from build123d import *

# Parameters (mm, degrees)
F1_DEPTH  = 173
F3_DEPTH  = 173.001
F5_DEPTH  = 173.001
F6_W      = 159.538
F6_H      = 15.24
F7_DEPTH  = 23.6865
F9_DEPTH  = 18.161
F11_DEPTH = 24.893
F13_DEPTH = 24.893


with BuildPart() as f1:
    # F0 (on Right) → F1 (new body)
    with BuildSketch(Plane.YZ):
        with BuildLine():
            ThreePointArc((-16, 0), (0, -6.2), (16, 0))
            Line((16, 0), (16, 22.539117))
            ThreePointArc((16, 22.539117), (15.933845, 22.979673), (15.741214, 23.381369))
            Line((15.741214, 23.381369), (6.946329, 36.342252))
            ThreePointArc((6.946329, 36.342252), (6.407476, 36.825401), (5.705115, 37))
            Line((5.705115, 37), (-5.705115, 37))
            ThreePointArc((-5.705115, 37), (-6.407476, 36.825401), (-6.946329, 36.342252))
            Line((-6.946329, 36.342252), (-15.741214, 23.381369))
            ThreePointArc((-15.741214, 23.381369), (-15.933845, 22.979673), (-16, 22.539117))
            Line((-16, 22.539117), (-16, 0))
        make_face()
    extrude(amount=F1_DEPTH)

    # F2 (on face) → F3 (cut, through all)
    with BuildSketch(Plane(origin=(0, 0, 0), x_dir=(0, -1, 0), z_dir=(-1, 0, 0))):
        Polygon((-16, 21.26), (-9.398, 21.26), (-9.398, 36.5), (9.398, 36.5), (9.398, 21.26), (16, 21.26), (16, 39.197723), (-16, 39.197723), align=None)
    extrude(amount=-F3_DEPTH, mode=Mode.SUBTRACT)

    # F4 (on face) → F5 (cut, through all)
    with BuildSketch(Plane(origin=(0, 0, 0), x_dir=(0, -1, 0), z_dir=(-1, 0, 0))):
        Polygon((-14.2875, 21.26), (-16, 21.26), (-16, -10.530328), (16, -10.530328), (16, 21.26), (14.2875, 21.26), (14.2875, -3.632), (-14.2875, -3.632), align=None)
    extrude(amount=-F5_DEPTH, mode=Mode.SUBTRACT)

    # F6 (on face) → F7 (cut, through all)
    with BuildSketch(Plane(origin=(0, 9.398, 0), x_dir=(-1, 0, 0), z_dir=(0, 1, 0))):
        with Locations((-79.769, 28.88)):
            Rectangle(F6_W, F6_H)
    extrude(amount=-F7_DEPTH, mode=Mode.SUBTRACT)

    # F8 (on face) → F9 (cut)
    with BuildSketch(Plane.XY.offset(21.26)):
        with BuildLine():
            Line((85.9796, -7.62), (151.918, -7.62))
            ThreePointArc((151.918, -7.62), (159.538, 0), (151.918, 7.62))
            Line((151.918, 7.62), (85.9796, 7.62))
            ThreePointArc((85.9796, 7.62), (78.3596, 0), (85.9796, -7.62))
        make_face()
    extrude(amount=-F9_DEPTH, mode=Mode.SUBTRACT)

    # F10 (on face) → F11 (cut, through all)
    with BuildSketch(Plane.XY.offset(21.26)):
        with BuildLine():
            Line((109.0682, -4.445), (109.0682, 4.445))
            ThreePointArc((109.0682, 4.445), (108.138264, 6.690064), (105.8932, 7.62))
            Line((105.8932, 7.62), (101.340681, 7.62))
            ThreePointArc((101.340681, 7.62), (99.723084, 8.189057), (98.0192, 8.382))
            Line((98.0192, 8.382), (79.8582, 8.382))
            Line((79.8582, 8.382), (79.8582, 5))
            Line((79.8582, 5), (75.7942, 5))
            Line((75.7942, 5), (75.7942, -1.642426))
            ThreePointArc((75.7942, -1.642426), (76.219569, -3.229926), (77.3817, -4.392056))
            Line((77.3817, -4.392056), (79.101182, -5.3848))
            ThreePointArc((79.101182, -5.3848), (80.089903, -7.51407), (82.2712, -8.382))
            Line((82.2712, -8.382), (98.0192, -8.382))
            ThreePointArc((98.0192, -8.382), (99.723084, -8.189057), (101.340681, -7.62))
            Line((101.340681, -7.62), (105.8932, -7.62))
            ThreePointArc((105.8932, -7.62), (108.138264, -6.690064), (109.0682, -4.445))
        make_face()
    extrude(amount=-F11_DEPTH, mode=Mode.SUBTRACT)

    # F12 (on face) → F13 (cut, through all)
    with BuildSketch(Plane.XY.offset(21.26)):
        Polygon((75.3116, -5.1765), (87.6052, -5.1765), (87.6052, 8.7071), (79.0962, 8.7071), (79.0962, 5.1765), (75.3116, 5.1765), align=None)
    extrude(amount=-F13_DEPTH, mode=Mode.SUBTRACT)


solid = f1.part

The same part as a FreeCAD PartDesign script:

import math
import FreeCAD as App
import Part
import Sketcher
from FreeCAD import Vector
Q = App.Units.Quantity


def add_polygon(sketch, points):
    """Adds a closed chain of lines whose ends are joined by coincident constraints."""
    first, n = sketch.GeometryCount, len(points)
    for a, b in zip(points, points[1:] + points[:1]):
        sketch.addGeometry(Part.LineSegment(App.Vector(*a, 0), App.Vector(*b, 0)), False)
    for i in range(n):
        sketch.addConstraint(Sketcher.Constraint("Coincident", first + i, 2, first + (i + 1) % n, 1))

doc = App.newDocument("Part")
params = doc.addObject("Spreadsheet::Sheet", "Params")
for row, (alias, value) in enumerate([
    ("pad1_length", "173 mm"),
    ("sketch2_height", "0.6 in"),
    ("sketch2_width", "0.74 in"),
    ("sketch3_height", "0.98 in"),
    ("sketch3_width", "1.125 in"),
    ("sketch4_height", "0.6 in"),
    ("sketch5_radius", "0.3 in"),
    ("sketch5_width", "2.596 in"),
    ("pocket4_length", "0.715 in"),
    ("sketch6_radius", "0.125 in"),
    ("sketch6_radius2", "0.1249998 in"),
    ("sketch6_width", "0.16 in"),
    ("sketch6_width2", "0.62 in"),
    ("sketch6_height", "0.35 in"),
    ("sketch7_width", "0.484 in"),
    ("sketch7_width2", "0.335 in"),
    ("sketch7_height", "0.139 in"),
], start=1):
    params.set(f"A{row}", alias)
    params.set(f"B{row}", "=" + value)
    params.setAlias(f"B{row}", alias)

body = doc.addObject("PartDesign::Body", "Body")

# Sketch on YZ plane
sketch1 = doc.addObject("Sketcher::SketchObject", "Sketch")
body.addObject(sketch1)
sketch1.AttachmentSupport = (doc.YZ_Plane, [""])
sketch1.MapMode = "FlatFace"
sketch1.addGeometry(Part.ArcOfCircle(Part.Circle(Vector(0, 17.545161, 0), Vector(0, 0, 1), 23.745161), math.radians(-132.362699), math.radians(-47.637301)), False)
sketch1.addGeometry(Part.LineSegment(Vector(16, 0, 0), Vector(16, 22.539117, 0)), False)
sketch1.addGeometry(Part.ArcOfCircle(Part.Circle(Vector(14.500005, 22.539119, 0), Vector(0, 0, 1), 1.499995), math.radians(-0.000077), math.radians(34.159735)), False)
sketch1.addGeometry(Part.LineSegment(Vector(15.741214, 23.381369, 0), Vector(6.946329, 36.342252, 0)), False)
sketch1.addGeometry(Part.ArcOfCircle(Part.Circle(Vector(5.705113, 35.499996, 0), Vector(0, 0, 1), 1.500004), math.radians(34.159769), math.radians(89.999929)), False)
sketch1.addGeometry(Part.LineSegment(Vector(5.705115, 37, 0), Vector(-5.705115, 37, 0)), False)
sketch1.addGeometry(Part.ArcOfCircle(Part.Circle(Vector(-5.705113, 35.499996, 0), Vector(0, 0, 1), 1.500004), math.radians(90.000071), math.radians(145.840231)), False)
sketch1.addGeometry(Part.LineSegment(Vector(-6.946329, 36.342252, 0), Vector(-15.741214, 23.381369, 0)), False)
sketch1.addGeometry(Part.ArcOfCircle(Part.Circle(Vector(-14.500005, 22.539119, 0), Vector(0, 0, 1), 1.499995), math.radians(145.840265), math.radians(180.000077)), False)
sketch1.addGeometry(Part.LineSegment(Vector(-16, 22.539117, 0), Vector(-16, 0, 0)), False)
sketch1.addConstraint(Sketcher.Constraint("Coincident", 0, 2, 1, 1))
sketch1.addConstraint(Sketcher.Constraint("Coincident", 1, 2, 2, 1))
sketch1.addConstraint(Sketcher.Constraint("Coincident", 2, 2, 3, 1))
sketch1.addConstraint(Sketcher.Constraint("Coincident", 3, 2, 4, 1))
sketch1.addConstraint(Sketcher.Constraint("Coincident", 4, 2, 5, 1))
sketch1.addConstraint(Sketcher.Constraint("Coincident", 5, 2, 6, 1))
sketch1.addConstraint(Sketcher.Constraint("Coincident", 6, 2, 7, 1))
sketch1.addConstraint(Sketcher.Constraint("Coincident", 7, 2, 8, 1))
sketch1.addConstraint(Sketcher.Constraint("Coincident", 8, 2, 9, 1))
sketch1.addConstraint(Sketcher.Constraint("Coincident", 9, 2, 0, 1))
sketch1.addConstraint(Sketcher.Constraint("Vertical", 1))
sketch1.addConstraint(Sketcher.Constraint("Horizontal", 5))
sketch1.addConstraint(Sketcher.Constraint("Vertical", 9))
sketch1.addConstraint(Sketcher.Constraint("PointOnObject", 0, 3, -2))
sketch1.addConstraint(Sketcher.Constraint("PointOnObject", 0, 2, -1))
sketch1.addConstraint(Sketcher.Constraint("PointOnObject", 9, 2, -1))
sketch1.addConstraint(Sketcher.Constraint("Radius", 0, Q("23.745161 mm")))
sketch1.addConstraint(Sketcher.Constraint("Radius", 2, Q("1.499995 mm")))
sketch1.addConstraint(Sketcher.Constraint("Radius", 4, Q("1.500004 mm")))
sketch1.addConstraint(Sketcher.Constraint("Radius", 6, Q("1.500004 mm")))
sketch1.addConstraint(Sketcher.Constraint("Radius", 8, Q("1.499995 mm")))
sketch1.addConstraint(Sketcher.Constraint("DistanceX", 5, 2, 5, 1, Q("11.41023 mm")))
sketch1.addConstraint(Sketcher.Constraint("DistanceX", -1, 1, 0, 2, Q("16 mm")))
sketch1.addConstraint(Sketcher.Constraint("DistanceY", -1, 1, 4, 2, Q("37 mm")))
sketch1.addConstraint(Sketcher.Constraint("DistanceX", 4, 3, 2, 2, Q("10.036101 mm")))
sketch1.addConstraint(Sketcher.Constraint("DistanceX", 4, 2, 2, 2, Q("10.036099 mm")))
sketch1.addConstraint(Sketcher.Constraint("DistanceX", 7, 2, 6, 3, Q("10.036101 mm")))
sketch1.addConstraint(Sketcher.Constraint("DistanceX", 7, 2, 5, 2, Q("10.036099 mm")))
sketch1.addConstraint(Sketcher.Constraint("DistanceY", 1, 1, 1, 2, Q("22.539117 mm")))
sketch1.addConstraint(Sketcher.Constraint("DistanceY", 9, 2, 9, 1, Q("22.539117 mm")))
sketch1.addConstraint(Sketcher.Constraint("DistanceY", -1, 1, 2, 3, Q("22.539119 mm")))
sketch1.addConstraint(Sketcher.Constraint("DistanceY", -1, 1, 8, 3, Q("22.539119 mm")))
sketch1.addConstraint(Sketcher.Constraint("DistanceY", -1, 1, 2, 2, Q("23.381369 mm")))
sketch1.addConstraint(Sketcher.Constraint("DistanceX", -1, 1, 3, 2, Q("6.946329 mm")))
sketch1.addConstraint(Sketcher.Constraint("DistanceX", 6, 2, -1, 1, Q("6.946329 mm")))
pad1 = doc.addObject("PartDesign::Pad", "Pad")
body.addObject(pad1)
pad1.Profile = sketch1
pad1.setExpression("Length", "Params.pad1_length")

# Sketch on YZ plane
sketch2 = doc.addObject("Sketcher::SketchObject", "Sketch001")
body.addObject(sketch2)
sketch2.AttachmentSupport = (doc.YZ_Plane, [""])
sketch2.MapMode = "FlatFace"
add_polygon(sketch2, [(16, 21.26), (9.398, 21.26), (9.398, 36.5), (-9.398, 36.5), (-9.398, 21.26), (-16, 21.26), (-16, 39.197723), (16, 39.197723)])  # lines 0-7
sketch2.addConstraint(Sketcher.Constraint("Horizontal", 0))
sketch2.addConstraint(Sketcher.Constraint("Vertical", 1))
sketch2.addConstraint(Sketcher.Constraint("Horizontal", 2))
sketch2.addConstraint(Sketcher.Constraint("Vertical", 3))
sketch2.addConstraint(Sketcher.Constraint("Horizontal", 4))
sketch2.addConstraint(Sketcher.Constraint("Vertical", 5))
sketch2.addConstraint(Sketcher.Constraint("Horizontal", 6))
sketch2.addConstraint(Sketcher.Constraint("Vertical", 7))
sketch2.addConstraint(Sketcher.Constraint("Symmetric", 0, 2, 3, 2, -2))
sketch2.addConstraint(Sketcher.Constraint("Equal", 0, 4))
sketch2.addConstraint(Sketcher.Constraint("DistanceY", 1, 1, 1, 2, Q("0.6 in")))
sketch2.addConstraint(Sketcher.Constraint("DistanceX", 2, 2, 2, 1, Q("0.74 in")))
sketch2.addConstraint(Sketcher.Constraint("DistanceX", 0, 2, 0, 1, Q("6.602 mm")))
sketch2.addConstraint(Sketcher.Constraint("DistanceY", -1, 1, 0, 2, Q("21.26 mm")))
sketch2.addConstraint(Sketcher.Constraint("DistanceY", 5, 1, 5, 2, Q("17.937723 mm")))
sketch2.setExpression("Constraints[18]", "Params.sketch2_height")
sketch2.setExpression("Constraints[19]", "Params.sketch2_width")
pocket1 = doc.addObject("PartDesign::Pocket", "Pocket")
body.addObject(pocket1)
pocket1.Profile = sketch2
pocket1.Type = "ThroughAll"
pocket1.Reversed = True

# Sketch on YZ plane
sketch3 = doc.addObject("Sketcher::SketchObject", "Sketch002")
body.addObject(sketch3)
sketch3.AttachmentSupport = (doc.YZ_Plane, [""])
sketch3.MapMode = "FlatFace"
add_polygon(sketch3, [(14.2875, 21.26), (16, 21.26), (16, -10.530328), (-16, -10.530328), (-16, 21.26), (-14.2875, 21.26), (-14.2875, -3.632), (14.2875, -3.632)])  # lines 0-7
sketch3.addConstraint(Sketcher.Constraint("Horizontal", 0))
sketch3.addConstraint(Sketcher.Constraint("Vertical", 1))
sketch3.addConstraint(Sketcher.Constraint("Horizontal", 2))
sketch3.addConstraint(Sketcher.Constraint("Vertical", 3))
sketch3.addConstraint(Sketcher.Constraint("Horizontal", 4))
sketch3.addConstraint(Sketcher.Constraint("Vertical", 5))
sketch3.addConstraint(Sketcher.Constraint("Horizontal", 6))
sketch3.addConstraint(Sketcher.Constraint("Vertical", 7))
sketch3.addConstraint(Sketcher.Constraint("Symmetric", 0, 2, 3, 2, -2))
sketch3.addConstraint(Sketcher.Constraint("Equal", 0, 4))
sketch3.addConstraint(Sketcher.Constraint("DistanceY", 5, 2, 5, 1, Q("0.98 in")))
sketch3.addConstraint(Sketcher.Constraint("DistanceX", 6, 1, 6, 2, Q("1.125 in")))
sketch3.addConstraint(Sketcher.Constraint("DistanceX", 0, 1, 0, 2, Q("1.7125 mm")))
sketch3.addConstraint(Sketcher.Constraint("DistanceY", 1, 2, 1, 1, Q("31.790328 mm")))
sketch3.addConstraint(Sketcher.Constraint("DistanceY", -1, 1, 0, 2, Q("21.26 mm")))
sketch3.setExpression("Constraints[18]", "Params.sketch3_height")
sketch3.setExpression("Constraints[19]", "Params.sketch3_width")
pocket2 = doc.addObject("PartDesign::Pocket", "Pocket001")
body.addObject(pocket2)
pocket2.Profile = sketch3
pocket2.Type = "ThroughAll"
pocket2.Reversed = True

# Sketch on XZ plane
sketch4 = doc.addObject("Sketcher::SketchObject", "Sketch003")
body.addObject(sketch4)
sketch4.AttachmentSupport = (doc.XZ_Plane, [""])
sketch4.MapMode = "FlatFace"
sketch4.AttachmentOffset = App.Placement(Vector(0, 0, -0.37 * 25.4), App.Rotation())
add_polygon(sketch4, [(159.538, 36.5), (159.538, 21.26), (0, 21.26), (0, 36.5)])  # lines 0-3
sketch4.addConstraint(Sketcher.Constraint("Vertical", 0))
sketch4.addConstraint(Sketcher.Constraint("Horizontal", 1))
sketch4.addConstraint(Sketcher.Constraint("Vertical", 2))
sketch4.addConstraint(Sketcher.Constraint("Horizontal", 3))
sketch4.addConstraint(Sketcher.Constraint("PointOnObject", 1, 2, -2))
sketch4.addConstraint(Sketcher.Constraint("DistanceY", 0, 2, 0, 1, Q("0.6 in")))
sketch4.addConstraint(Sketcher.Constraint("DistanceX", 1, 2, 1, 1, Q("159.538 mm")))
sketch4.addConstraint(Sketcher.Constraint("DistanceY", -1, 1, 0, 2, Q("21.26 mm")))
sketch4.setExpression("Constraints[9]", "Params.sketch4_height")
pocket3 = doc.addObject("PartDesign::Pocket", "Pocket002")
body.addObject(pocket3)
pocket3.Profile = sketch4
pocket3.Type = "ThroughAll"
pocket3.Reversed = True

# Sketch on XY plane
sketch5 = doc.addObject("Sketcher::SketchObject", "Sketch004")
body.addObject(sketch5)
sketch5.AttachmentSupport = (doc.XY_Plane, [""])
sketch5.MapMode = "FlatFace"
sketch5.AttachmentOffset = App.Placement(Vector(0, 0, 21.26), App.Rotation())
sketch5.addGeometry(Part.LineSegment(Vector(85.9796, -7.62, 0), Vector(151.918, -7.62, 0)), False)
sketch5.addGeometry(Part.ArcOfCircle(Part.Circle(Vector(151.918, 0, 0), Vector(0, 0, 1), 7.62), math.radians(-90), math.radians(90)), False)
sketch5.addGeometry(Part.LineSegment(Vector(151.918, 7.62, 0), Vector(85.9796, 7.62, 0)), False)
sketch5.addGeometry(Part.ArcOfCircle(Part.Circle(Vector(85.9796, 0, 0), Vector(0, 0, 1), 7.62), math.radians(90), math.radians(270)), False)
sketch5.addConstraint(Sketcher.Constraint("Tangent", 0, 2, 1, 1))
sketch5.addConstraint(Sketcher.Constraint("Tangent", 1, 2, 2, 1))
sketch5.addConstraint(Sketcher.Constraint("Tangent", 2, 2, 3, 1))
sketch5.addConstraint(Sketcher.Constraint("Tangent", 3, 2, 0, 1))
sketch5.addConstraint(Sketcher.Constraint("Horizontal", 0))
sketch5.addConstraint(Sketcher.Constraint("Horizontal", 2))
sketch5.addConstraint(Sketcher.Constraint("PointOnObject", 1, 3, -1))
sketch5.addConstraint(Sketcher.Constraint("Radius", 1, Q("0.3 in")))
sketch5.addConstraint(Sketcher.Constraint("DistanceX", 0, 1, 0, 2, Q("2.596 in")))
sketch5.addConstraint(Sketcher.Constraint("DistanceX", -1, 1, 1, 3, Q("151.918 mm")))
sketch5.setExpression("Constraints[7]", "Params.sketch5_radius")
sketch5.setExpression("Constraints[8]", "Params.sketch5_width")
pocket4 = doc.addObject("PartDesign::Pocket", "Pocket003")
body.addObject(pocket4)
pocket4.Profile = sketch5
pocket4.setExpression("Length", "Params.pocket4_length")

# Sketch on XY plane
sketch6 = doc.addObject("Sketcher::SketchObject", "Sketch005")
body.addObject(sketch6)
sketch6.AttachmentSupport = (doc.XY_Plane, [""])
sketch6.MapMode = "FlatFace"
sketch6.AttachmentOffset = App.Placement(Vector(0, 0, 21.26), App.Rotation())
sketch6.addGeometry(Part.LineSegment(Vector(109.0682, -4.445, 0), Vector(109.0682, 4.445, 0)), False)
sketch6.addGeometry(Part.ArcOfCircle(Part.Circle(Vector(105.8932, 4.445, 0), Vector(0, 0, 1), 3.175), math.radians(0.000002), math.radians(89.999998)), False)
sketch6.addGeometry(Part.LineSegment(Vector(105.8932, 7.62, 0), Vector(101.340681, 7.62, 0)), False)
sketch6.addGeometry(Part.ArcOfCircle(Part.Circle(Vector(98.019198, 0.761991, 0), Vector(0, 0, 1), 7.620009), math.radians(64.158083), math.radians(89.999984)), False)
sketch6.addGeometry(Part.LineSegment(Vector(98.0192, 8.382, 0), Vector(79.8582, 8.382, 0)), False)
sketch6.addGeometry(Part.LineSegment(Vector(79.8582, 8.382, 0), Vector(79.8582, 5, 0)), False)
sketch6.addGeometry(Part.LineSegment(Vector(79.8582, 5, 0), Vector(75.7942, 5, 0)), False)
sketch6.addGeometry(Part.LineSegment(Vector(75.7942, 5, 0), Vector(75.7942, -1.642426, 0)), False)
sketch6.addGeometry(Part.ArcOfCircle(Part.Circle(Vector(78.969196, -1.642428, 0), Vector(0, 0, 1), 3.174996), math.radians(179.99997), math.radians(240.000042)), False)
sketch6.addGeometry(Part.LineSegment(Vector(77.3817, -4.392056, 0), Vector(79.101182, -5.3848, 0)), False)
sketch6.addGeometry(Part.ArcOfCircle(Part.Circle(Vector(82.271199, -5.207001, 0), Vector(0, 0, 1), 3.174999), math.radians(-176.789773), math.radians(-89.999978)), False)
sketch6.addGeometry(Part.LineSegment(Vector(82.2712, -8.382, 0), Vector(98.0192, -8.382, 0)), False)
sketch6.addGeometry(Part.ArcOfCircle(Part.Circle(Vector(98.019198, -0.761991, 0), Vector(0, 0, 1), 7.620009), math.radians(-89.999984), math.radians(-64.158083)), False)
sketch6.addGeometry(Part.LineSegment(Vector(101.340681, -7.62, 0), Vector(105.8932, -7.62, 0)), False)
sketch6.addGeometry(Part.ArcOfCircle(Part.Circle(Vector(105.8932, -4.445, 0), Vector(0, 0, 1), 3.175), math.radians(-89.999998), math.radians(-0.000002)), False)
sketch6.addConstraint(Sketcher.Constraint("Tangent", 0, 2, 1, 1))
sketch6.addConstraint(Sketcher.Constraint("Tangent", 1, 2, 2, 1))
sketch6.addConstraint(Sketcher.Constraint("Coincident", 2, 2, 3, 1))
sketch6.addConstraint(Sketcher.Constraint("Tangent", 3, 2, 4, 1))
sketch6.addConstraint(Sketcher.Constraint("Coincident", 4, 2, 5, 1))
sketch6.addConstraint(Sketcher.Constraint("Coincident", 5, 2, 6, 1))
sketch6.addConstraint(Sketcher.Constraint("Coincident", 6, 2, 7, 1))
sketch6.addConstraint(Sketcher.Constraint("Tangent", 7, 2, 8, 1))
sketch6.addConstraint(Sketcher.Constraint("Tangent", 8, 2, 9, 1))
sketch6.addConstraint(Sketcher.Constraint("Coincident", 9, 2, 10, 1))
sketch6.addConstraint(Sketcher.Constraint("Tangent", 10, 2, 11, 1))
sketch6.addConstraint(Sketcher.Constraint("Tangent", 11, 2, 12, 1))
sketch6.addConstraint(Sketcher.Constraint("Coincident", 12, 2, 13, 1))
sketch6.addConstraint(Sketcher.Constraint("Tangent", 13, 2, 14, 1))
sketch6.addConstraint(Sketcher.Constraint("Tangent", 14, 2, 0, 1))
sketch6.addConstraint(Sketcher.Constraint("Vertical", 0))
sketch6.addConstraint(Sketcher.Constraint("Horizontal", 2))
sketch6.addConstraint(Sketcher.Constraint("Horizontal", 4))
sketch6.addConstraint(Sketcher.Constraint("Vertical", 5))
sketch6.addConstraint(Sketcher.Constraint("Horizontal", 6))
sketch6.addConstraint(Sketcher.Constraint("Vertical", 7))
sketch6.addConstraint(Sketcher.Constraint("Horizontal", 11))
sketch6.addConstraint(Sketcher.Constraint("Horizontal", 13))
sketch6.addConstraint(Sketcher.Constraint("Equal", 1, 10))
sketch6.addConstraint(Sketcher.Constraint("Equal", 3, 12))
sketch6.addConstraint(Sketcher.Constraint("Equal", 10, 14))
sketch6.addConstraint(Sketcher.Constraint("Symmetric", 3, 3, 12, 3, -1))
sketch6.addConstraint(Sketcher.Constraint("Vertical", 2, 2, 12, 2))
sketch6.addConstraint(Sketcher.Constraint("Angle", 9, Q("-30.000015 deg")))
sketch6.addConstraint(Sketcher.Constraint("Radius", 1, Q("0.125 in")))
sketch6.addConstraint(Sketcher.Constraint("Radius", 8, Q("0.1249998 in")))
sketch6.addConstraint(Sketcher.Constraint("DistanceX", 6, 2, 6, 1, Q("0.16 in")))
sketch6.addConstraint(Sketcher.Constraint("DistanceX", 11, 1, 11, 2, Q("0.62 in")))
sketch6.addConstraint(Sketcher.Constraint("DistanceY", 0, 1, 0, 2, Q("0.35 in")))
sketch6.addConstraint(Sketcher.Constraint("DistanceX", 4, 2, 4, 1, Q("0.715 in")))
sketch6.addConstraint(Sketcher.Constraint("DistanceY", -1, 1, 3, 2, Q("0.33 in")))
sketch6.addConstraint(Sketcher.Constraint("DistanceX", 3, 3, 1, 3, Q("0.3100001 in")))
sketch6.addConstraint(Sketcher.Constraint("DistanceY", 9, 2, -1, 1, Q("0.212 in")))
sketch6.addConstraint(Sketcher.Constraint("Radius", 3, Q("7.620009 mm")))
sketch6.addConstraint(Sketcher.Constraint("DistanceY", 5, 2, 5, 1, Q("3.382 mm")))
sketch6.addConstraint(Sketcher.Constraint("DistanceX", -1, 1, 1, 3, Q("105.8932 mm")))
sketch6.setExpression("Constraints[29]", "Params.sketch6_radius")
sketch6.setExpression("Constraints[30]", "Params.sketch6_radius2")
sketch6.setExpression("Constraints[31]", "Params.sketch6_width")
sketch6.setExpression("Constraints[32]", "Params.sketch6_width2")
sketch6.setExpression("Constraints[33]", "Params.sketch6_height")
pocket5 = doc.addObject("PartDesign::Pocket", "Pocket004")
body.addObject(pocket5)
pocket5.Profile = sketch6
pocket5.Type = "ThroughAll"

# Sketch on XY plane
sketch7 = doc.addObject("Sketcher::SketchObject", "Sketch006")
body.addObject(sketch7)
sketch7.AttachmentSupport = (doc.XY_Plane, [""])
sketch7.MapMode = "FlatFace"
sketch7.AttachmentOffset = App.Placement(Vector(0, 0, 21.26), App.Rotation())
add_polygon(sketch7, [(75.3116, -5.1765), (87.6052, -5.1765), (87.6052, 8.7071), (79.0962, 8.7071), (79.0962, 5.1765), (75.3116, 5.1765)])  # lines 0-5
sketch7.addConstraint(Sketcher.Constraint("Horizontal", 0))
sketch7.addConstraint(Sketcher.Constraint("Vertical", 1))
sketch7.addConstraint(Sketcher.Constraint("Horizontal", 2))
sketch7.addConstraint(Sketcher.Constraint("Vertical", 3))
sketch7.addConstraint(Sketcher.Constraint("Horizontal", 4))
sketch7.addConstraint(Sketcher.Constraint("Vertical", 5))
sketch7.addConstraint(Sketcher.Constraint("DistanceX", 0, 1, 0, 2, Q("0.484 in")))
sketch7.addConstraint(Sketcher.Constraint("DistanceX", 2, 2, 2, 1, Q("0.335 in")))
sketch7.addConstraint(Sketcher.Constraint("DistanceY", 3, 2, 3, 1, Q("0.139 in")))
sketch7.addConstraint(Sketcher.Constraint("DistanceY", 1, 1, 1, 2, Q("13.8836 mm")))
sketch7.addConstraint(Sketcher.Constraint("DistanceX", -1, 1, 0, 2, Q("87.6052 mm")))
sketch7.addConstraint(Sketcher.Constraint("DistanceY", 0, 2, -1, 1, Q("5.1765 mm")))
sketch7.setExpression("Constraints[12]", "Params.sketch7_width")
sketch7.setExpression("Constraints[13]", "Params.sketch7_width2")
sketch7.setExpression("Constraints[14]", "Params.sketch7_height")
pocket6 = doc.addObject("PartDesign::Pocket", "Pocket005")
body.addObject(pocket6)
pocket6.Profile = sketch7
pocket6.Type = "ThroughAll"

doc.recompute()
